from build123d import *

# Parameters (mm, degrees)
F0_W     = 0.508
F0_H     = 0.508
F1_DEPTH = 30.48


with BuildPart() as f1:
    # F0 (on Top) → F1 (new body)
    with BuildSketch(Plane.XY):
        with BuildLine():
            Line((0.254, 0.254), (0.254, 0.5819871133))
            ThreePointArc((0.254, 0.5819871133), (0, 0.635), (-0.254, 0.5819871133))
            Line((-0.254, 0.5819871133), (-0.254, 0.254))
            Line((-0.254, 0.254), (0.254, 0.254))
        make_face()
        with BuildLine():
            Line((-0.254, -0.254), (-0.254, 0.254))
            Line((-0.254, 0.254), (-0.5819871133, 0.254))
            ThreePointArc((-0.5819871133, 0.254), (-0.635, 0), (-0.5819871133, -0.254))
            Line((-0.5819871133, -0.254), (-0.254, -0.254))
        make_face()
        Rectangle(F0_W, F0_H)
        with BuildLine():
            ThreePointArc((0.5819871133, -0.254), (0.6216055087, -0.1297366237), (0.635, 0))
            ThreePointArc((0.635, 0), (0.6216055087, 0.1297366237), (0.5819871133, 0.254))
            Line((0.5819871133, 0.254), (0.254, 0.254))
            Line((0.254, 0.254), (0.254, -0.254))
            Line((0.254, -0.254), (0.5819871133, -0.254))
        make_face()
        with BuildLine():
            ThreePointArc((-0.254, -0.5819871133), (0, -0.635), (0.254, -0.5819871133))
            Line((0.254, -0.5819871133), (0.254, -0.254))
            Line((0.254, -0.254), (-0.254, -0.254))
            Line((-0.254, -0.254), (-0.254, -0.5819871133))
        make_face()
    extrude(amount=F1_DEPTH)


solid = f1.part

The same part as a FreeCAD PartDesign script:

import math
import FreeCAD as App
import Part
import Sketcher
from FreeCAD import Vector
Q = App.Units.Quantity

doc = App.newDocument("Part")
body = doc.addObject("PartDesign::Body", "Body")

sketch1 = body.newObject("Sketcher::SketchObject", "Sketch")
sketch1.AttachmentSupport = (doc.getObject("XY_Plane"), [""])
sketch1.MapMode = "FlatFace"
sketch1.addGeometry([
    Part.ArcOfCircle(Part.Circle(Vector(0, 0, 0), Vector(0, 0, 1), 0.635), math.radians(66.421822), math.radians(113.578178)),
    Part.LineSegment(Vector(-0.254, 0.581987, 0), Vector(-0.254, 0.254, 0)),
    Part.LineSegment(Vector(-0.254, 0.254, 0), Vector(-0.581987, 0.254, 0)),
    Part.ArcOfCircle(Part.Circle(Vector(0, 0, 0), Vector(0, 0, 1), 0.635), math.radians(156.421822), math.radians(203.578178)),
    Part.LineSegment(Vector(-0.581987, -0.254, 0), Vector(-0.254, -0.254, 0)),
    Part.LineSegment(Vector(-0.254, -0.254, 0), Vector(-0.254, -0.581987, 0)),
    Part.ArcOfCircle(Part.Circle(Vector(0, 0, 0), Vector(0, 0, 1), 0.635), math.radians(-113.578178), math.radians(-66.421822)),
    Part.LineSegment(Vector(0.254, -0.581987, 0), Vector(0.254, -0.254, 0)),
    Part.LineSegment(Vector(0.254, -0.254, 0), Vector(0.581987, -0.254, 0)),
    Part.ArcOfCircle(Part.Circle(Vector(0, 0, 0), Vector(0, 0, 1), 0.635), math.radians(-23.578178), math.radians(0)),
    Part.ArcOfCircle(Part.Circle(Vector(0, 0, 0), Vector(0, 0, 1), 0.635), math.radians(0), math.radians(23.578178)),
    Part.LineSegment(Vector(0.581987, 0.254, 0), Vector(0.254, 0.254, 0)),
    Part.LineSegment(Vector(0.254, 0.254, 0), Vector(0.254, 0.581987, 0)),
], False)
sketch1.addConstraint([
    Sketcher.Constraint("Coincident", 0, 2, 1, 1),
    Sketcher.Constraint("Coincident", 1, 2, 2, 1),
    Sketcher.Constraint("Coincident", 2, 2, 3, 1),
    Sketcher.Constraint("Coincident", 3, 2, 4, 1),
    Sketcher.Constraint("Coincident", 4, 2, 5, 1),
    Sketcher.Constraint("Coincident", 5, 2, 6, 1),
    Sketcher.Constraint("Coincident", 6, 2, 7, 1),
    Sketcher.Constraint("Coincident", 7, 2, 8, 1),
    Sketcher.Constraint("Coincident", 8, 2, 9, 1),
    Sketcher.Constraint("Tangent", 9, 2, 10, 1),
    Sketcher.Constraint("Coincident", 10, 2, 11, 1),
    Sketcher.Constraint("Coincident", 11, 2, 12, 1),
    Sketcher.Constraint("Coincident", 12, 2, 0, 1),
    Sketcher.Constraint("Vertical", 1),
    Sketcher.Constraint("Horizontal", 2),
    Sketcher.Constraint("Horizontal", 4),
    Sketcher.Constraint("Vertical", 5),
    Sketcher.Constraint("Vertical", 7),
    Sketcher.Constraint("Horizontal", 8),
    Sketcher.Constraint("Horizontal", 11),
    Sketcher.Constraint("Vertical", 12),
    Sketcher.Constraint("Coincident", 0, 3, -1, 1),
    Sketcher.Constraint("Coincident", 3, 3, -1, 1),
    Sketcher.Constraint("Coincident", 6, 3, -1, 1),
    Sketcher.Constraint("Coincident", 9, 3, -1, 1),
    Sketcher.Constraint("Equal", 0, 3),
    Sketcher.Constraint("Equal", 3, 6),
    Sketcher.Constraint("Equal", 6, 9),
    Sketcher.Constraint("Equal", 9, 10),
    Sketcher.Constraint("Symmetric", 1, 2, 7, 2, -1, 1),
    Sketcher.Constraint("Symmetric", 4, 2, 11, 2, -1, 1),
    Sketcher.Constraint("Symmetric", 4, 2, 7, 2, -2),
    Sketcher.Constraint("PointOnObject", 9, 2, -1),
    Sketcher.Constraint("Equal", 11, 1),
    Sketcher.Constraint("Radius", 0, Q("0.025 in")),
    Sketcher.Constraint("DistanceX", 0, 2, -1, 1, Q("0.01 in")),
])
pad1 = body.newObject("PartDesign::Pad", "Pad")
pad1.Profile = sketch1
pad1.Length = Q("1.2 in")

doc.recompute()
